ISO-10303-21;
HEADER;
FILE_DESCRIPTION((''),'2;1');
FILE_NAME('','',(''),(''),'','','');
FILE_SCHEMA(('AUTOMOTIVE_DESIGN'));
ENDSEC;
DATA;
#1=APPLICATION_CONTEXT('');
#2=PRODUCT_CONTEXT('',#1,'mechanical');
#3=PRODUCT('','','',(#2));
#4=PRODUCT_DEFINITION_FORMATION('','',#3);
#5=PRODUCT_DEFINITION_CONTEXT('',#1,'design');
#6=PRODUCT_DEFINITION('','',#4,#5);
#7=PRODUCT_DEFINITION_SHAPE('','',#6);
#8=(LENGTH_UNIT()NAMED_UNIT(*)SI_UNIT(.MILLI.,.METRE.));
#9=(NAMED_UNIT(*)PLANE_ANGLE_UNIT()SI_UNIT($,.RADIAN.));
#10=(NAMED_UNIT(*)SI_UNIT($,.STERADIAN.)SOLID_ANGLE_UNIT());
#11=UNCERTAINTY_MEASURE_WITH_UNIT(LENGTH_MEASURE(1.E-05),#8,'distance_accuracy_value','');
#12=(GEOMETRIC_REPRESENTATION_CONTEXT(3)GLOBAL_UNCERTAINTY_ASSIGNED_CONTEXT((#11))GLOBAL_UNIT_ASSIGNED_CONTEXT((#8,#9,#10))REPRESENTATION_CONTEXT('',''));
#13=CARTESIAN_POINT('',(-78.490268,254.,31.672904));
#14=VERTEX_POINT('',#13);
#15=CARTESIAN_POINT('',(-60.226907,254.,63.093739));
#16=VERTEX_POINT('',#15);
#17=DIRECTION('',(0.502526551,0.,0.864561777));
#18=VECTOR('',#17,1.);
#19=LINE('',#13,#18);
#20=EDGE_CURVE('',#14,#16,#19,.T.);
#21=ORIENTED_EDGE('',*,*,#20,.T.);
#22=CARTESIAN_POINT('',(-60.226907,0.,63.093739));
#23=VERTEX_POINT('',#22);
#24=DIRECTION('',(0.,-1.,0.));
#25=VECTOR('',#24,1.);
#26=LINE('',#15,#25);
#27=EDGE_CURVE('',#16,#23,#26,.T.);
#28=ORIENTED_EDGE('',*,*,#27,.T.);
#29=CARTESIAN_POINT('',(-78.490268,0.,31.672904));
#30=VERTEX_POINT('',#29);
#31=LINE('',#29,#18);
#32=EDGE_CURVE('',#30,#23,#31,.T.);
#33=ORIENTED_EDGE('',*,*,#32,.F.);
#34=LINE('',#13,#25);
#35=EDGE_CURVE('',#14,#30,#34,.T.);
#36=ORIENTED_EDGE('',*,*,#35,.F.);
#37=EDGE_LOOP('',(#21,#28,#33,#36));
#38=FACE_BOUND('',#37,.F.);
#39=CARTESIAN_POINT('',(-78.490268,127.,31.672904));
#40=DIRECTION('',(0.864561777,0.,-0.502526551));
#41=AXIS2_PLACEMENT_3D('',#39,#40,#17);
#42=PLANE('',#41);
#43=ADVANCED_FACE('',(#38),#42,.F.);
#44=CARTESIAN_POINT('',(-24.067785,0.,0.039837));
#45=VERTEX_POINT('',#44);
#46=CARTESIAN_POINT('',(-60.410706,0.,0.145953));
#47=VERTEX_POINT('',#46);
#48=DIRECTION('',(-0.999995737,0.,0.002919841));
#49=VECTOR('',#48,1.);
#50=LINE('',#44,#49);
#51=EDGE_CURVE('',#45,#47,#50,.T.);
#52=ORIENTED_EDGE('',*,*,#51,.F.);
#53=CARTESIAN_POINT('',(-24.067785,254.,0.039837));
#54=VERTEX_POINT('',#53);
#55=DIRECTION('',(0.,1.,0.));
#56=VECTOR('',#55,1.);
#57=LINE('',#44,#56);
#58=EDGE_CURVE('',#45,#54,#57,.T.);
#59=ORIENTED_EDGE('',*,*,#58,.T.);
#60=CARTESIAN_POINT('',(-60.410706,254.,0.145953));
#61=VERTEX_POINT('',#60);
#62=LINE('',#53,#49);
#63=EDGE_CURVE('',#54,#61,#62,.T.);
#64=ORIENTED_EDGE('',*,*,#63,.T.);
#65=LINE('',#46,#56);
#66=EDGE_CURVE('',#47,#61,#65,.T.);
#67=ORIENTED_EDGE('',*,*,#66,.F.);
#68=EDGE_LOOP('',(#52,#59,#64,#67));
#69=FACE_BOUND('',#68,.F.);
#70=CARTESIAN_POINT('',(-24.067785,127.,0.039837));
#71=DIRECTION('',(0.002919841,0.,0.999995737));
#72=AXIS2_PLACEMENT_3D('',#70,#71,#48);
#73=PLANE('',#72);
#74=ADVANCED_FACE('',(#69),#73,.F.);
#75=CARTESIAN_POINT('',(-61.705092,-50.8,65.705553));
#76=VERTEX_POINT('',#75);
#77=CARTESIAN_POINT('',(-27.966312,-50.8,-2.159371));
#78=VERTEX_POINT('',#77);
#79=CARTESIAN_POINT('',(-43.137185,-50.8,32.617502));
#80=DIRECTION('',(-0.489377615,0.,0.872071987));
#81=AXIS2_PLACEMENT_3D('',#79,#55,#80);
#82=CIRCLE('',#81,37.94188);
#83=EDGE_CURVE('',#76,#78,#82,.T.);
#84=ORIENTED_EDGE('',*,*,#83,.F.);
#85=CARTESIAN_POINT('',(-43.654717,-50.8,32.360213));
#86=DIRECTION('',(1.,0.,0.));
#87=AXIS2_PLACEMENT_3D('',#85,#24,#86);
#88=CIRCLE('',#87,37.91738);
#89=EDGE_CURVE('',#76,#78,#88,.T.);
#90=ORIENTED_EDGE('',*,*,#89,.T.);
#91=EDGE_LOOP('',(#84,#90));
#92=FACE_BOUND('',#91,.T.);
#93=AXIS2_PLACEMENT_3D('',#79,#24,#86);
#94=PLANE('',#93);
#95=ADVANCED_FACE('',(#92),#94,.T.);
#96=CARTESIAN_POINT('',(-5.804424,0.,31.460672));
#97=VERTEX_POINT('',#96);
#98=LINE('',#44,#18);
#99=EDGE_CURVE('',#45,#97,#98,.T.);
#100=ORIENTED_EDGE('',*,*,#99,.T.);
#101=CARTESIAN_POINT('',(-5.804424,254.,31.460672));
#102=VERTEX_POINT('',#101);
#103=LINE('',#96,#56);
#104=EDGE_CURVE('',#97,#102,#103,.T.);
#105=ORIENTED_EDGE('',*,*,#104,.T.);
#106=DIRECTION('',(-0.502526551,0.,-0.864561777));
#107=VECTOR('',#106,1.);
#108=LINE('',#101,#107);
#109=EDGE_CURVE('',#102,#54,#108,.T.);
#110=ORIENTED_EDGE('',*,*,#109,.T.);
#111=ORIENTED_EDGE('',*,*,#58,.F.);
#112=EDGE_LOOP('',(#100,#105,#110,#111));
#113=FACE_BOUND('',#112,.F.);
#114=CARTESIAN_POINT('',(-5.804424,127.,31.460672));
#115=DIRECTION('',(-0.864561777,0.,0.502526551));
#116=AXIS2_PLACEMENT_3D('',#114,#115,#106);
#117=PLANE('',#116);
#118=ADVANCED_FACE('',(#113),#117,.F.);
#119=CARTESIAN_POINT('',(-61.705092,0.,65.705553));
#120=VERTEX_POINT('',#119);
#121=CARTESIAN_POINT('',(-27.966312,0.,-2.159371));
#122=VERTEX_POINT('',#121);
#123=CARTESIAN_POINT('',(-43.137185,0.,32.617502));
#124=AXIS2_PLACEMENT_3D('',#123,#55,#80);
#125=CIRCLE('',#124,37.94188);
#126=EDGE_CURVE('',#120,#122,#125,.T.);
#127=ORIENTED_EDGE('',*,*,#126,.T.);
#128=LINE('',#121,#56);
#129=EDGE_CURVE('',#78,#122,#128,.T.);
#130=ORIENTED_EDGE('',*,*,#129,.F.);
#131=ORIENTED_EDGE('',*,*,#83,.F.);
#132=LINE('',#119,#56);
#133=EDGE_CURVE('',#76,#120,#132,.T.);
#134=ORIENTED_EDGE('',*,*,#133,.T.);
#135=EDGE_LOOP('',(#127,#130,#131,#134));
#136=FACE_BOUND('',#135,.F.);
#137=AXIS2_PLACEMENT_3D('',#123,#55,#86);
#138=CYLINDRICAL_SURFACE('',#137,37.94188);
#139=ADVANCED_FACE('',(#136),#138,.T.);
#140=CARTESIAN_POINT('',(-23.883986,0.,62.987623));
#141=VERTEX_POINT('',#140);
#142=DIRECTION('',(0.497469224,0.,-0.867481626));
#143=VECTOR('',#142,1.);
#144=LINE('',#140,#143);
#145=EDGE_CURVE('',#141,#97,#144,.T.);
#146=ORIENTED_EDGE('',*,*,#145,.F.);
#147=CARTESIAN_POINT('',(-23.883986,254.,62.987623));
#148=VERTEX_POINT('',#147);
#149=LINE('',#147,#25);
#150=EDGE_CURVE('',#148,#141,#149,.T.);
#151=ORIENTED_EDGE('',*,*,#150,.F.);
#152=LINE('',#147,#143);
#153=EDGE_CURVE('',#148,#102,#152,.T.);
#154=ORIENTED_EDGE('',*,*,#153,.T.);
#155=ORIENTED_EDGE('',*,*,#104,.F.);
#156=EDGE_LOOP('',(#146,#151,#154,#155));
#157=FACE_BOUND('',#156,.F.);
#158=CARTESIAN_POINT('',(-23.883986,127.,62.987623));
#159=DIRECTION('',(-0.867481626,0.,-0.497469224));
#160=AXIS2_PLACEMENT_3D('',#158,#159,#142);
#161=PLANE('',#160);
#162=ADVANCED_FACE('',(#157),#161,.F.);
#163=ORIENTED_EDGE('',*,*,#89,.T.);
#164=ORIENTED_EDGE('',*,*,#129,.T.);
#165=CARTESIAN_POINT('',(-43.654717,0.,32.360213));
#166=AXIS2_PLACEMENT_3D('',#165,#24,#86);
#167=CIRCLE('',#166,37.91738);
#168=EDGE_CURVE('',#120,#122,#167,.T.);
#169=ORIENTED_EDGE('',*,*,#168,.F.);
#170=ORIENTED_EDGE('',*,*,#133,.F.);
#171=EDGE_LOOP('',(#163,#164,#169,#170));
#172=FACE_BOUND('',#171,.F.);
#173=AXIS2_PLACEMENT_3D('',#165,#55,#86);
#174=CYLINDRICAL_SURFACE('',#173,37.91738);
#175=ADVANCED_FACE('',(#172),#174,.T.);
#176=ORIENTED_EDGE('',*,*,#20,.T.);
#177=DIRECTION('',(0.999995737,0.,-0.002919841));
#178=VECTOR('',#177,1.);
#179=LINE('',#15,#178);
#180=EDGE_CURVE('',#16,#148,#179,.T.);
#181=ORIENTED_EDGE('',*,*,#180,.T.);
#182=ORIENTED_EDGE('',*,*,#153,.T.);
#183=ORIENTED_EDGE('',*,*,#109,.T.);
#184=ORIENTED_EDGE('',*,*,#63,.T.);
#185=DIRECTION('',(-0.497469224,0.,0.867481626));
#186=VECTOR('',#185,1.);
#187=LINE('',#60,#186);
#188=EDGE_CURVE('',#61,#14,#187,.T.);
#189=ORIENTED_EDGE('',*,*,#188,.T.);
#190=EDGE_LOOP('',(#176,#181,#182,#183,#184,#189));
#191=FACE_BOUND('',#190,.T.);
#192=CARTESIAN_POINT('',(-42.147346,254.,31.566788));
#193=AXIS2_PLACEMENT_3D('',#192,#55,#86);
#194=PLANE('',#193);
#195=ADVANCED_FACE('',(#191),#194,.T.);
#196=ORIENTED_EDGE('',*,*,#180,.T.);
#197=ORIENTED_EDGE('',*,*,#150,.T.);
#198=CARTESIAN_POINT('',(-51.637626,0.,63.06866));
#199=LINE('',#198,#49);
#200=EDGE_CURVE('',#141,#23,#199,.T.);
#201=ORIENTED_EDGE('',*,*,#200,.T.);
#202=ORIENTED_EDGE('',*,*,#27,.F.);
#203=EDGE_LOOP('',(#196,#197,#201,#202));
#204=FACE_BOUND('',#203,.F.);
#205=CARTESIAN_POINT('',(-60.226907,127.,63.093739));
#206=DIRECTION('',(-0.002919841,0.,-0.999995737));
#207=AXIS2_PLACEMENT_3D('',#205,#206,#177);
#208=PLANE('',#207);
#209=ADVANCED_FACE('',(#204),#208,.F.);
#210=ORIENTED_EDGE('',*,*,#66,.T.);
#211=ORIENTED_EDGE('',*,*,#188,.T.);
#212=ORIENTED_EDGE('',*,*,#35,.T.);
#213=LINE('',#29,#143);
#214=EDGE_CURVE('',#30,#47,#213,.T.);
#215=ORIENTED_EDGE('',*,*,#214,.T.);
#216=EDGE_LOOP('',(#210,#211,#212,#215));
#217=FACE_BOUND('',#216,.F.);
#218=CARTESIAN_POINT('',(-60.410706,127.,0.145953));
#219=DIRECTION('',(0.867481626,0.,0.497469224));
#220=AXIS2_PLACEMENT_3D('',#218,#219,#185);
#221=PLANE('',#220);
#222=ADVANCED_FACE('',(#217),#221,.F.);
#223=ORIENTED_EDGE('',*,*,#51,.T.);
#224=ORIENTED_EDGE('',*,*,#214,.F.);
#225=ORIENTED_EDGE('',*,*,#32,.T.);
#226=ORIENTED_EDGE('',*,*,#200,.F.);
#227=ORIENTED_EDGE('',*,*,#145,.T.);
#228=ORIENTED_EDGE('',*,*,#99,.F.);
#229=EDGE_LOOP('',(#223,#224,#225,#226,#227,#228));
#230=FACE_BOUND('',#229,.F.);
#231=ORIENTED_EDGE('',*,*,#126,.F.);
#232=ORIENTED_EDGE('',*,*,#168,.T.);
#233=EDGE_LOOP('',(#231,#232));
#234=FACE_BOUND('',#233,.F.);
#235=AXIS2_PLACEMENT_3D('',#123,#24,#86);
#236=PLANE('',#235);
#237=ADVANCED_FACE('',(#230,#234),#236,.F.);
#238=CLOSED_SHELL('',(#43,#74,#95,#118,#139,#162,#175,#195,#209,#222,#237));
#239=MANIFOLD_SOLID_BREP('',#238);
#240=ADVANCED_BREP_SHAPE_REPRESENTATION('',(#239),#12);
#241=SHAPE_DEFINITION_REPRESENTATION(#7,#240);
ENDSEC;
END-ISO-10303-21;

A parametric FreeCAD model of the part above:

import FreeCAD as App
import Part
import Sketcher
Q = App.Units.Quantity

doc = App.newDocument("Part")
body = doc.addObject("PartDesign::Body", "Body")

# Sketch on XZ plane
sketch1 = body.newObject("Sketcher::SketchObject", "Sketch")
sketch1.AttachmentSupport = (doc.getObject("XZ_Plane"), [""])
sketch1.MapMode = "FlatFace"
sketch1.addGeometry([
    Part.LineSegment(App.Vector(-24, 0, 0), App.Vector(-6, 31, 0)),  # 0
    Part.LineSegment(App.Vector(-6, 31, 0), App.Vector(-24, 63, 0)),  # 1
    Part.LineSegment(App.Vector(-24, 63, 0), App.Vector(-60, 63, 0)),  # 2
    Part.LineSegment(App.Vector(-60, 63, 0), App.Vector(-78, 32, 0)),  # 3
    Part.LineSegment(App.Vector(-78, 32, 0), App.Vector(-60, 0, 0)),  # 4
    Part.LineSegment(App.Vector(-60, 0, 0), App.Vector(-24, 0, 0)),  # 5
], False)
sketch1.addConstraint([
    Sketcher.Constraint("Coincident", 0, 2, 1, 1),
    Sketcher.Constraint("Coincident", 1, 2, 2, 1),
    Sketcher.Constraint("Coincident", 2, 2, 3, 1),
    Sketcher.Constraint("Coincident", 3, 2, 4, 1),
    Sketcher.Constraint("Coincident", 4, 2, 5, 1),
    Sketcher.Constraint("Coincident", 5, 2, 0, 1),
    Sketcher.Constraint("Parallel", 0, 3),
    Sketcher.Constraint("Parallel", 1, 4),
    Sketcher.Constraint("Parallel", 2, 5),
    Sketcher.Constraint("Equal", 0, 1),
    Sketcher.Constraint("Equal", 1, 2),
    Sketcher.Constraint("Equal", 2, 3),
    Sketcher.Constraint("DistanceX", 4, 2, 2, 2, Q("0.183799 mm")),
    Sketcher.Constraint("DistanceY", -1, 1, 0, 2, Q("31.460671 mm")),
    Sketcher.Constraint("DistanceY", -1, 1, 2, 2, Q("63.093739 mm")),
    Sketcher.Constraint("DistanceX", 1, 2, 0, 2, Q("18.079562 mm")),
    Sketcher.Constraint("DistanceY", 0, 2, 1, 2, Q("31.526952 mm")),
    Sketcher.Constraint("DistanceX", 0, 2, -1, 1, Q("5.804424 mm")),
])
pad1 = body.newObject("PartDesign::Pad", "Pad")
pad1.Profile = sketch1
pad1.Length = Q("1 in")

# Sketch on XZ plane
sketch2 = body.newObject("Sketcher::SketchObject", "Sketch001")
sketch2.AttachmentSupport = (doc.getObject("XZ_Plane"), [""])
sketch2.MapMode = "FlatFace"
sketch2.addGeometry([
    Part.LineSegment(App.Vector(-6, 31, 0), App.Vector(-24, 0, 0)),  # 0
    Part.LineSegment(App.Vector(-24, 0, 0), App.Vector(-60, 0, 0)),  # 1
    Part.LineSegment(App.Vector(-60, 0, 0), App.Vector(-78, 32, 0)),  # 2
    Part.LineSegment(App.Vector(-78, 32, 0), App.Vector(-60, 63, 0)),  # 3
    Part.LineSegment(App.Vector(-60, 63, 0), App.Vector(-24, 63, 0)),  # 4
    Part.LineSegment(App.Vector(-24, 63, 0), App.Vector(-6, 31, 0)),  # 5
], False)
sketch2.addConstraint([
    Sketcher.Constraint("Coincident", 0, 2, 1, 1),
    Sketcher.Constraint("Coincident", 1, 2, 2, 1),
    Sketcher.Constraint("Coincident", 2, 2, 3, 1),
    Sketcher.Constraint("Coincident", 3, 2, 4, 1),
    Sketcher.Constraint("Coincident", 4, 2, 5, 1),
    Sketcher.Constraint("Coincident", 5, 2, 0, 1),
    Sketcher.Constraint("Parallel", 0, 3),
    Sketcher.Constraint("Parallel", 1, 4),
    Sketcher.Constraint("Parallel", 2, 5),
    Sketcher.Constraint("Equal", 0, 1),
    Sketcher.Constraint("Equal", 1, 2),
    Sketcher.Constraint("Equal", 2, 3),
    Sketcher.Constraint("DistanceX", 1, 2, 3, 2, Q("0.183799 mm")),
    Sketcher.Constraint("DistanceX", 2, 2, -1, 1, Q("78.490268 mm")),
    Sketcher.Constraint("DistanceY", -1, 1, 3, 2, Q("63.093739 mm")),
    Sketcher.Constraint("DistanceY", -1, 1, 5, 2, Q("31.460672 mm")),
    Sketcher.Constraint("DistanceX", 1, 2, 0, 2, Q("36.342921 mm")),
    Sketcher.Constraint("DistanceY", 1, 2, 2, 2, Q("31.526951 mm")),
])
pad2 = body.newObject("PartDesign::Pad", "Pad001")
pad2.Profile = sketch2
pad2.Length = Q("5 in")
pad2.Reversed = True

# Sketch on XZ plane
sketch3 = body.newObject("Sketcher::SketchObject", "Sketch002")
sketch3.AttachmentSupport = (doc.getObject("XZ_Plane"), [""])
sketch3.MapMode = "FlatFace"
sketch3.addGeometry(Part.Circle(App.Vector(-43, 33, 0), App.Vector(0, 0, 1), 38), False)
sketch3.addConstraint([
    Sketcher.Constraint("Diameter", 0, Q("75.88376 mm")),
    Sketcher.Constraint("DistanceX", 0, 3, -1, 1, Q("43.137185 mm")),
    Sketcher.Constraint("DistanceY", -1, 1, 0, 3, Q("32.617502 mm")),
])
pad3 = body.newObject("PartDesign::Pad", "Pad002")
pad3.Profile = sketch3
pad3.Length = Q("2 in")

# Sketch on XZ plane
sketch4 = body.newObject("Sketcher::SketchObject", "Sketch003")
sketch4.AttachmentSupport = (doc.getObject("XZ_Plane"), [""])
sketch4.MapMode = "FlatFace"
sketch4.AttachmentOffset = App.Placement(App.Vector(0, 0, -5 * 25.4), App.Rotation())
sketch4.addGeometry([
    Part.LineSegment(App.Vector(-24, 63, 0), App.Vector(-6, 31, 0)),  # 0
    Part.LineSegment(App.Vector(-6, 31, 0), App.Vector(-24, 0, 0)),  # 1
    Part.LineSegment(App.Vector(-24, 0, 0), App.Vector(-60, 0, 0)),  # 2
    Part.LineSegment(App.Vector(-60, 0, 0), App.Vector(-78, 32, 0)),  # 3
    Part.LineSegment(App.Vector(-78, 32, 0), App.Vector(-60, 63, 0)),  # 4
    Part.LineSegment(App.Vector(-60, 63, 0), App.Vector(-24, 63, 0)),  # 5
], False)
sketch4.addConstraint([
    Sketcher.Constraint("Coincident", 0, 2, 1, 1),
    Sketcher.Constraint("Coincident", 1, 2, 2, 1),
    Sketcher.Constraint("Coincident", 2, 2, 3, 1),
    Sketcher.Constraint("Coincident", 3, 2, 4, 1),
    Sketcher.Constraint("Coincident", 4, 2, 5, 1),
    Sketcher.Constraint("Coincident", 5, 2, 0, 1),
    Sketcher.Constraint("Parallel", 0, 3),
    Sketcher.Constraint("Parallel", 1, 4),
    Sketcher.Constraint("Parallel", 2, 5),
    Sketcher.Constraint("Equal", 0, 1),
    Sketcher.Constraint("Equal", 1, 2),
    Sketcher.Constraint("Equal", 2, 3),
    Sketcher.Constraint("DistanceX", 2, 2, 4, 2, Q("0.183799 mm")),
    Sketcher.Constraint("DistanceY", -1, 1, 0, 2, Q("31.460672 mm")),
    Sketcher.Constraint("DistanceX", 3, 2, -1, 1, Q("78.490268 mm")),
    Sketcher.Constraint("DistanceY", -1, 1, 4, 2, Q("63.093739 mm")),
    Sketcher.Constraint("DistanceX", 1, 2, 0, 2, Q("18.263361 mm")),
    Sketcher.Constraint("DistanceX", 2, 2, 1, 2, Q("36.342921 mm")),
])
pad4 = body.newObject("PartDesign::Pad", "Pad003")
pad4.Profile = sketch4
pad4.Length = Q("5 in")
pad4.Reversed = True

# Sketch on XZ plane
sketch5 = body.newObject("Sketcher::SketchObject", "Sketch004")
sketch5.AttachmentSupport = (doc.getObject("XZ_Plane"), [""])
sketch5.MapMode = "FlatFace"
sketch5.addGeometry(Part.Circle(App.Vector(-44, 32, 0), App.Vector(0, 0, 1), 38), False)
sketch5.addConstraint([
    Sketcher.Constraint("Diameter", 0, Q("75.83476 mm")),
    Sketcher.Constraint("DistanceX", 0, 3, -1, 1, Q("43.654717 mm")),
    Sketcher.Constraint("DistanceY", -1, 1, 0, 3, Q("32.360213 mm")),
])
pad5 = body.newObject("PartDesign::Pad", "Pad004")
pad5.Profile = sketch5
pad5.Length = Q("2 in")

doc.recompute()
